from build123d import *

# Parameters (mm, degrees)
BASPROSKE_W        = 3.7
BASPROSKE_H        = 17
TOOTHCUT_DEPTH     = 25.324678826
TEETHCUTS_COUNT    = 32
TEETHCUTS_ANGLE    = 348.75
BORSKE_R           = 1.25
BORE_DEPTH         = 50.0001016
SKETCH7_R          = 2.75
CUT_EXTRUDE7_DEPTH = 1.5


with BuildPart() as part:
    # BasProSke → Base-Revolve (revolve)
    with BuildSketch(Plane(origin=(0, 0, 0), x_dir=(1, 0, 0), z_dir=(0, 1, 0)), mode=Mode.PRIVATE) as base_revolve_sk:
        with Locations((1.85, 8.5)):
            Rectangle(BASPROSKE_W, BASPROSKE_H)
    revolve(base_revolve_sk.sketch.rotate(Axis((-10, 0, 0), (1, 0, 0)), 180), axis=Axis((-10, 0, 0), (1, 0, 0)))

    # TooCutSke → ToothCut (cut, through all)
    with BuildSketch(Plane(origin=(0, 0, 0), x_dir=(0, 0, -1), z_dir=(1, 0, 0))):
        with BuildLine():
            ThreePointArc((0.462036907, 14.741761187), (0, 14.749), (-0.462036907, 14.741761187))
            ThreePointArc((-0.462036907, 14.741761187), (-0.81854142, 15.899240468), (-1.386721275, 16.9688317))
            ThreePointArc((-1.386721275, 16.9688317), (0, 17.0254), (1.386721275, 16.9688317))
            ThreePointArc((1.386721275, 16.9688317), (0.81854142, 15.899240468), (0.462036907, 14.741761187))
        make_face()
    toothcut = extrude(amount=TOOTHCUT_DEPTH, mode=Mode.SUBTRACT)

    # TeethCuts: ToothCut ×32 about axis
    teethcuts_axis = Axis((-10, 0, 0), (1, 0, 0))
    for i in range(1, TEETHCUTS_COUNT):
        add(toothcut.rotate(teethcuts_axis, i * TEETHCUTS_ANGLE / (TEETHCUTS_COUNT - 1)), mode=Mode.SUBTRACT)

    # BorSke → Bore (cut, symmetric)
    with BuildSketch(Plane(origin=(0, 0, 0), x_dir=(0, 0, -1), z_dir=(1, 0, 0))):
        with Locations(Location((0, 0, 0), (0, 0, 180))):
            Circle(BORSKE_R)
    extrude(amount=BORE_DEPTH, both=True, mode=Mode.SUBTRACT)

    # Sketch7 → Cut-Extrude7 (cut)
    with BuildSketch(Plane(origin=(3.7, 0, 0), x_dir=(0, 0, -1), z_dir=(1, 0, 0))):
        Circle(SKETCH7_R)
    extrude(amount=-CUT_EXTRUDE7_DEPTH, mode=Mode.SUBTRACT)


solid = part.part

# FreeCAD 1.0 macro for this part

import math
import FreeCAD as App
import Part
import Sketcher
Q = App.Units.Quantity


def add_polygon(sketch, points):
    """Adds a closed chain of lines whose ends are joined by coincident constraints."""
    first, n = sketch.GeometryCount, len(points)
    for a, b in zip(points, points[1:] + points[:1]):
        sketch.addGeometry(Part.LineSegment(App.Vector(*a, 0), App.Vector(*b, 0)), False)
    for i in range(n):
        sketch.addConstraint(Sketcher.Constraint("Coincident", first + i, 2, first + (i + 1) % n, 1))

doc = App.newDocument("Part")
body = doc.addObject("PartDesign::Body", "Body")

sketch1 = body.newObject("Sketcher::SketchObject", "Sketch")
sketch1.AttachmentSupport = (doc.getObject("XZ_Plane"), [""])
sketch1.MapMode = "FlatFace"
add_polygon(sketch1, [(0, -17), (0, 0), (3.7, 0), (3.7, -17)])
sketch1.addConstraint(Sketcher.Constraint("Vertical", 0))
sketch1.addConstraint(Sketcher.Constraint("Horizontal", 1))
sketch1.addConstraint(Sketcher.Constraint("Vertical", 2))
sketch1.addConstraint(Sketcher.Constraint("Horizontal", 3))
sketch1.addConstraint(Sketcher.Constraint("Coincident", 0, 2, -1, 1))
sketch1.addConstraint(Sketcher.Constraint("DistanceY", 0, 1, 0, 2, Q("17 mm")))
sketch1.addConstraint(Sketcher.Constraint("DistanceX", 1, 1, 1, 2, Q("3.7 mm")))
revolution = body.newObject("PartDesign::Revolution", "Revolution")
revolution.Profile = sketch1
revolution.ReferenceAxis = (sketch1, ["H_Axis"])
revolution.Angle = 360

sketch2 = body.newObject("Sketcher::SketchObject", "Sketch001")
sketch2.AttachmentSupport = (doc.getObject("YZ_Plane"), [""])
sketch2.MapMode = "FlatFace"
sketch2.addGeometry(Part.ArcOfCircle(Part.Circle(App.Vector(0, 0, 0), App.Vector(0, 0, 1), 14.7), math.radians(-1.8), math.radians(1.8)), False)
sketch2.addGeometry(Part.ArcOfCircle(Part.Circle(App.Vector(13.4, -6.7, 0), App.Vector(0, 0, 1), 6.4), math.radians(57), math.radians(78)), False)
sketch2.addGeometry(Part.ArcOfCircle(Part.Circle(App.Vector(0, 0, 0), App.Vector(0, 0, 1), 17), math.radians(-4.67), math.radians(4.67)), False)
sketch2.addGeometry(Part.ArcOfCircle(Part.Circle(App.Vector(13.4, 6.7, 0), App.Vector(0, 0, 1), 6.4), math.radians(-78), math.radians(-57)), False)
sketch2.addConstraint(Sketcher.Constraint("Coincident", 0, 1, 1, 2))
sketch2.addConstraint(Sketcher.Constraint("Coincident", 1, 1, 2, 1))
sketch2.addConstraint(Sketcher.Constraint("Coincident", 2, 2, 3, 2))
sketch2.addConstraint(Sketcher.Constraint("Coincident", 3, 1, 0, 2))
sketch2.addConstraint(Sketcher.Constraint("Coincident", 0, 3, -1, 1))
sketch2.addConstraint(Sketcher.Constraint("Coincident", 2, 3, -1, 1))
sketch2.addConstraint(Sketcher.Constraint("Equal", 1, 3))
sketch2.addConstraint(Sketcher.Constraint("Symmetric", 1, 3, 3, 3, -1))
sketch2.addConstraint(Sketcher.Constraint("Radius", 1, Q("6.4 mm")))
sketch2.addConstraint(Sketcher.Constraint("Radius", 0, Q("14.749 mm")))
sketch2.addConstraint(Sketcher.Constraint("Radius", 2, Q("17.0254 mm")))
sketch2.addConstraint(Sketcher.Constraint("DistanceX", -1, 1, 1, 3, Q("13.44508 mm")))
sketch2.addConstraint(Sketcher.Constraint("DistanceX", -1, 1, 0, 1, Q("14.741761 mm")))
pocket1 = body.newObject("PartDesign::Pocket", "Pocket")
pocket1.Profile = sketch2
pocket1.Type = "ThroughAll"
pocket1.Reversed = True
doc.recompute()

polarpattern = body.newObject("PartDesign::PolarPattern", "PolarPattern")
polarpattern.Originals = [pocket1]
polarpattern.Axis = (doc.getObject("X_Axis"), [""])
polarpattern.Angle = 360
polarpattern.Occurrences = 32
body.Tip = polarpattern

sketch3 = body.newObject("Sketcher::SketchObject", "Sketch002")
sketch3.AttachmentSupport = (doc.getObject("YZ_Plane"), [""])
sketch3.MapMode = "FlatFace"
sketch3.addGeometry(Part.Circle(App.Vector(0, 0, 0), App.Vector(0, 0, 1), 1.2), False)
sketch3.addConstraint(Sketcher.Constraint("Coincident", 0, 3, -1, 1))
sketch3.addConstraint(Sketcher.Constraint("Diameter", 0, Q("2.5 mm")))
pocket2 = body.newObject("PartDesign::Pocket", "Pocket001")
pocket2.Profile = sketch3
pocket2.Length = 100.000203
pocket2.Midplane = True

sketch4 = body.newObject("Sketcher::SketchObject", "Sketch003")
sketch4.AttachmentSupport = (doc.getObject("YZ_Plane"), [""])
sketch4.MapMode = "FlatFace"
sketch4.AttachmentOffset = App.Placement(App.Vector(0, 0, 3.7), App.Rotation())
sketch4.addGeometry(Part.Circle(App.Vector(0, 0, 0), App.Vector(0, 0, 1), 2.8), False)
sketch4.addConstraint(Sketcher.Constraint("Coincident", 0, 3, -1, 1))
sketch4.addConstraint(Sketcher.Constraint("Diameter", 0, Q("5.5 mm")))
pocket3 = body.newObject("PartDesign::Pocket", "Pocket002")
pocket3.Profile = sketch4
pocket3.Length = 1.5

doc.recompute()
